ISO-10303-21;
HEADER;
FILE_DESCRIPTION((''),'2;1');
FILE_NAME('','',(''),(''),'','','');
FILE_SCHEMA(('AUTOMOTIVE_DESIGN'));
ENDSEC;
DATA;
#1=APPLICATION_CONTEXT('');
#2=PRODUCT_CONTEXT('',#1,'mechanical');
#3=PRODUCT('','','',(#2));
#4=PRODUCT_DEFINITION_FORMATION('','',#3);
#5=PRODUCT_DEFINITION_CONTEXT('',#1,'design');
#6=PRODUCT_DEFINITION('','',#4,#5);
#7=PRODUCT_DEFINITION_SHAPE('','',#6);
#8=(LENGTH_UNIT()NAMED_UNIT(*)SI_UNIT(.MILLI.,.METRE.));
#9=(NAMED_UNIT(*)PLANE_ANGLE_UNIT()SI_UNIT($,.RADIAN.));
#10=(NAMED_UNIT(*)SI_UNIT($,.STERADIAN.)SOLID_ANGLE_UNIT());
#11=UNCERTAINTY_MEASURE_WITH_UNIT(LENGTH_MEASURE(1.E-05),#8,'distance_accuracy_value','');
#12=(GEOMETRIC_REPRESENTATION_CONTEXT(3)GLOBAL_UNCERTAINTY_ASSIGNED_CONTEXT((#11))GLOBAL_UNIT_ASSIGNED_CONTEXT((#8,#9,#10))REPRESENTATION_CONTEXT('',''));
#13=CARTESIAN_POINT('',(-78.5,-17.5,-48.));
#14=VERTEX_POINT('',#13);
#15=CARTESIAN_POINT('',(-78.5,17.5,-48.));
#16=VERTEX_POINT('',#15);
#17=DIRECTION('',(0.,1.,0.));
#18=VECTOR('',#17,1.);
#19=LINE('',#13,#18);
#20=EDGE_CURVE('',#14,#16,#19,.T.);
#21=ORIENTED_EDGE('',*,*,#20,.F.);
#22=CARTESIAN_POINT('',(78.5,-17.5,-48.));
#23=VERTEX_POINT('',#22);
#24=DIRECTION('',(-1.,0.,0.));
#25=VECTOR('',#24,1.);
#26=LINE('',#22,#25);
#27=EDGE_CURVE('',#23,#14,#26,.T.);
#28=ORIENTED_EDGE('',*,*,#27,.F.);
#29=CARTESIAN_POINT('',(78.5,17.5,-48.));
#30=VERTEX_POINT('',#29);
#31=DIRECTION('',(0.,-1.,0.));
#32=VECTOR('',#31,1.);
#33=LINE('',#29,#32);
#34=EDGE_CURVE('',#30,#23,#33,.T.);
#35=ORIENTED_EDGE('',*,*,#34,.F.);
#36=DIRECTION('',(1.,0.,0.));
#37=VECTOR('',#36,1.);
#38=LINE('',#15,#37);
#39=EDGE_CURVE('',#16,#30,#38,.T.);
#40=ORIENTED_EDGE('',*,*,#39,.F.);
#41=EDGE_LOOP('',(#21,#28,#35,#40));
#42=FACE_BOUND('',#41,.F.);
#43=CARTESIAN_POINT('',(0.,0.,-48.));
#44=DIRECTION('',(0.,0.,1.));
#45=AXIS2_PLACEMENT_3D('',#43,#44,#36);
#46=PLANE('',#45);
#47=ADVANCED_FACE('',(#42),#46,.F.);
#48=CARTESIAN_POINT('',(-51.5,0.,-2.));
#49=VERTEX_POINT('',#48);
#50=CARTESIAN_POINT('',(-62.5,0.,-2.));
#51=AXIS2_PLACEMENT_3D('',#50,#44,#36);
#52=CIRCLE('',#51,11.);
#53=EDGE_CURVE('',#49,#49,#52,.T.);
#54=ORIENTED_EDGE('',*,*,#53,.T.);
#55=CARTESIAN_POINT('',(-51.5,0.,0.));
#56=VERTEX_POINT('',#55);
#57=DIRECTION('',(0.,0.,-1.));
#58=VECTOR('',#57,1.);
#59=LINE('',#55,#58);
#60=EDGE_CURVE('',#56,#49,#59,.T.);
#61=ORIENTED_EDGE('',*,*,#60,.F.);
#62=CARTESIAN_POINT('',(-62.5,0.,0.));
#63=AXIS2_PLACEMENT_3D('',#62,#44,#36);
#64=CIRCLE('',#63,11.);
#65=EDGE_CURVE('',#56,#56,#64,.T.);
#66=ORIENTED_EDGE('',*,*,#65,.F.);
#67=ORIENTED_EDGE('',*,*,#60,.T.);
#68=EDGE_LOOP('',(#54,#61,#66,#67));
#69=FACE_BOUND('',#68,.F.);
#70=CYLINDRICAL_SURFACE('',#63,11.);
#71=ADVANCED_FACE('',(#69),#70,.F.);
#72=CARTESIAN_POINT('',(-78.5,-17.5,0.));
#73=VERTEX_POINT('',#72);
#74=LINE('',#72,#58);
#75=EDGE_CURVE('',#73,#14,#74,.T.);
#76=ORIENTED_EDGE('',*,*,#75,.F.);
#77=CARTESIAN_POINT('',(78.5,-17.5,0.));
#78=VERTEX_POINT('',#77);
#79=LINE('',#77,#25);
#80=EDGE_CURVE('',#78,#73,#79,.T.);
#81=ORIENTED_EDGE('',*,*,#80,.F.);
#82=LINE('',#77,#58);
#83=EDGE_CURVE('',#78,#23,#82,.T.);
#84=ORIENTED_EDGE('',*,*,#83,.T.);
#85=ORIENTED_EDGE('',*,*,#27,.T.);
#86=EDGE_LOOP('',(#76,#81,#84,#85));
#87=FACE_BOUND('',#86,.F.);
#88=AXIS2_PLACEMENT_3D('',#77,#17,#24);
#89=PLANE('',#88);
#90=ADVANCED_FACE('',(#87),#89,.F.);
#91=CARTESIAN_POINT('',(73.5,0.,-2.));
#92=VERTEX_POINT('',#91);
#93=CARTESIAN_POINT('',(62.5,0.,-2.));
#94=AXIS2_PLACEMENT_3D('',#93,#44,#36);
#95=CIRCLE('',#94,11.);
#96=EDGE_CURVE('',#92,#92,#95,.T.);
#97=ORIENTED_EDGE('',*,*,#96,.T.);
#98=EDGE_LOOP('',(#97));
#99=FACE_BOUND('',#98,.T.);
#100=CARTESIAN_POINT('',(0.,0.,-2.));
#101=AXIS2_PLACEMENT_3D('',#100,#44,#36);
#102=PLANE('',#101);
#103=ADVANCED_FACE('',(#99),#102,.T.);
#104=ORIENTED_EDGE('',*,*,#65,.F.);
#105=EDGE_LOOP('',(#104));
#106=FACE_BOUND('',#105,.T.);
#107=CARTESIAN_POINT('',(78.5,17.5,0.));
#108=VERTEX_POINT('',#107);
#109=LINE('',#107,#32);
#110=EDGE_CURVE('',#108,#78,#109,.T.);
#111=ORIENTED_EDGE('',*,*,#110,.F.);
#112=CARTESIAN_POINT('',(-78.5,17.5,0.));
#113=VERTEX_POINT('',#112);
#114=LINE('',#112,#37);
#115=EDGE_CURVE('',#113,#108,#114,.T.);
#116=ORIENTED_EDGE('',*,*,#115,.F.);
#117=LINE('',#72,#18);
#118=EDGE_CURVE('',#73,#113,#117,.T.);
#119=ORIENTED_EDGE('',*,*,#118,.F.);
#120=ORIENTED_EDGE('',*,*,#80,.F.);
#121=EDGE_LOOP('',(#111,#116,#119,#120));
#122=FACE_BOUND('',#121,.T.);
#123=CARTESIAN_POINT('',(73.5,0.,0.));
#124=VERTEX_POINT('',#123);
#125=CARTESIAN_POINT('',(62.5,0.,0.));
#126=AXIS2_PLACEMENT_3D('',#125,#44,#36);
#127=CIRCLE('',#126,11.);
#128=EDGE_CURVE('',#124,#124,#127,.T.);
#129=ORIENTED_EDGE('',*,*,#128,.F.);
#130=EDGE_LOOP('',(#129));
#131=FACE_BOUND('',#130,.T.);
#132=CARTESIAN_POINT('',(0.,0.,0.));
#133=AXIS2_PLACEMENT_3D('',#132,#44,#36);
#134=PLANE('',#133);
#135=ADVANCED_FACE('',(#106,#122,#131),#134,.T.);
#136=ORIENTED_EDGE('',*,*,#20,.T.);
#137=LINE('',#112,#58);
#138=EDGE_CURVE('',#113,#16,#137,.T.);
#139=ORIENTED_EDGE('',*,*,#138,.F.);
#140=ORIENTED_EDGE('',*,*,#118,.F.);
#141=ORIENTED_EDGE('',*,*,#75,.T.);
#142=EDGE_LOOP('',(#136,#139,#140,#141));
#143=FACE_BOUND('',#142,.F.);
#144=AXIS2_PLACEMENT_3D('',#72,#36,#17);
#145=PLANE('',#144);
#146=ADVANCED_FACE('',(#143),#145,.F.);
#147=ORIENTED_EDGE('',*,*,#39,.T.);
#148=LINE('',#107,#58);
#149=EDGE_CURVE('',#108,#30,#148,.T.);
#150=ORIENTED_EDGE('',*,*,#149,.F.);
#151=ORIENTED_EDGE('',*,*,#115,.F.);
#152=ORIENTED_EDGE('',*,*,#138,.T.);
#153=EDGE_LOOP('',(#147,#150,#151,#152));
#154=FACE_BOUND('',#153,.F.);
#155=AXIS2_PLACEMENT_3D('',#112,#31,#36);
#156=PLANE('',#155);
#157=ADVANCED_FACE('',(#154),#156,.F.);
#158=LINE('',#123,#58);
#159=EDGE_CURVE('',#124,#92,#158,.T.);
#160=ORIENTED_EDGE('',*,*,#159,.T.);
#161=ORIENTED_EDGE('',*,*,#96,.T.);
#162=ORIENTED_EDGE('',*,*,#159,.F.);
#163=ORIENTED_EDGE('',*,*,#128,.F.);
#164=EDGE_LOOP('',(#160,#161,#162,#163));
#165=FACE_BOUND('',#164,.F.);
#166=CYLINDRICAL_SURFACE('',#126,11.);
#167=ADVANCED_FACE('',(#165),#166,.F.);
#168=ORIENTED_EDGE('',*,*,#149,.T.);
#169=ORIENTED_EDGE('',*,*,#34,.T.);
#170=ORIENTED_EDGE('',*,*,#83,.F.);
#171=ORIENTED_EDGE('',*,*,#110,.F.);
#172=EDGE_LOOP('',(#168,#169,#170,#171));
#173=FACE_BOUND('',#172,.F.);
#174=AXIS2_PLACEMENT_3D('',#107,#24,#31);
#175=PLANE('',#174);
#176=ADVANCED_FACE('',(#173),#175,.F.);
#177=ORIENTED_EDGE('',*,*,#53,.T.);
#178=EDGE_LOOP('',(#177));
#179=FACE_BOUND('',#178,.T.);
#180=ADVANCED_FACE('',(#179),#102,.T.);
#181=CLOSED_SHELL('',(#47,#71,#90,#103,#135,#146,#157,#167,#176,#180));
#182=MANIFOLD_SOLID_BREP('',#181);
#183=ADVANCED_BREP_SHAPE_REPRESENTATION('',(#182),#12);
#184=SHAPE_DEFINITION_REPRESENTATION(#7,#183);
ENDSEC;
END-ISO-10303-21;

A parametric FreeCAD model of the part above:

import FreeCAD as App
import Part
import Sketcher
Q = App.Units.Quantity

doc = App.newDocument("Part")
body = doc.addObject("PartDesign::Body", "Body")

# Sketch on XY plane
sketch1 = doc.addObject("Sketcher::SketchObject", "Sketch")
body.addObject(sketch1)
sketch1.AttachmentSupport = (doc.XY_Plane, [""])
sketch1.MapMode = "FlatFace"
sketch1.addGeometry(Part.LineSegment(App.Vector(78, 18, 0), App.Vector(-78, 18, 0)), False)
sketch1.addGeometry(Part.LineSegment(App.Vector(-78, 18, 0), App.Vector(-78, -18, 0)), False)
sketch1.addGeometry(Part.LineSegment(App.Vector(-78, -18, 0), App.Vector(78, -18, 0)), False)
sketch1.addGeometry(Part.LineSegment(App.Vector(78, -18, 0), App.Vector(78, 18, 0)), False)
sketch1.addConstraint(Sketcher.Constraint("Coincident", 0, 2, 1, 1))
sketch1.addConstraint(Sketcher.Constraint("Coincident", 1, 2, 2, 1))
sketch1.addConstraint(Sketcher.Constraint("Coincident", 2, 2, 3, 1))
sketch1.addConstraint(Sketcher.Constraint("Coincident", 3, 2, 0, 1))
sketch1.addConstraint(Sketcher.Constraint("Horizontal", 0))
sketch1.addConstraint(Sketcher.Constraint("Vertical", 1))
sketch1.addConstraint(Sketcher.Constraint("Horizontal", 2))
sketch1.addConstraint(Sketcher.Constraint("Vertical", 3))
sketch1.addConstraint(Sketcher.Constraint("Symmetric", 0, 2, 2, 2, -1, 1))
sketch1.addConstraint(Sketcher.Constraint("DistanceX", 0, 2, 0, 1, Q("157 mm")))
sketch1.addConstraint(Sketcher.Constraint("DistanceY", 1, 2, 1, 1, Q("35 mm")))
pad1 = doc.addObject("PartDesign::Pad", "Pad")
body.addObject(pad1)
pad1.Profile = sketch1
pad1.Length = 48
pad1.Reversed = True

# Sketch on XY plane
sketch2 = doc.addObject("Sketcher::SketchObject", "Sketch001")
body.addObject(sketch2)
sketch2.AttachmentSupport = (doc.XY_Plane, [""])
sketch2.MapMode = "FlatFace"
sketch2.addGeometry(Part.Circle(App.Vector(-62, 0, 0), App.Vector(0, 0, 1), 11), False)
sketch2.addGeometry(Part.Circle(App.Vector(62, 0, 0), App.Vector(0, 0, 1), 11), False)
sketch2.addConstraint(Sketcher.Constraint("Equal", 0, 1))
sketch2.addConstraint(Sketcher.Constraint("Symmetric", 0, 3, 1, 3, -1, 1))
sketch2.addConstraint(Sketcher.Constraint("PointOnObject", 0, 3, -1))
sketch2.addConstraint(Sketcher.Constraint("Diameter", 0, Q("22 mm")))
sketch2.addConstraint(Sketcher.Constraint("DistanceX", 0, 3, 1, 3, Q("125 mm")))
pocket1 = doc.addObject("PartDesign::Pocket", "Pocket")
body.addObject(pocket1)
pocket1.Profile = sketch2
pocket1.Length = 2

doc.recompute()
